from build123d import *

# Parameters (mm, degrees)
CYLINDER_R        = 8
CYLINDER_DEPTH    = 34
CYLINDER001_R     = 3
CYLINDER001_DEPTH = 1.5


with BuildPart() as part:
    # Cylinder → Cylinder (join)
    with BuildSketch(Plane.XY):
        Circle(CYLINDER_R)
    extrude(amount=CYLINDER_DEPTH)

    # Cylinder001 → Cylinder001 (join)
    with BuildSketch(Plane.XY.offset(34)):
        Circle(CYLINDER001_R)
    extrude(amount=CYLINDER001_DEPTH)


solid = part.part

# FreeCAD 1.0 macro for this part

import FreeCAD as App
import Part
import Sketcher

V = App.Vector

doc = App.newDocument("Part")
params = doc.addObject("Spreadsheet::Sheet", "Params")
for row, (alias, value) in enumerate([
    ("sketch1_diameter", "16 mm"),
    ("pad1_length", "34 mm"),
    ("sketch2_diameter", "6 mm"),
    ("pad2_length", "1.5 mm"),
], start=1):
    params.set(f"A{row}", alias)
    params.set(f"B{row}", "=" + value)
    params.setAlias(f"B{row}", alias)

body = doc.addObject("PartDesign::Body", "Body")

# Sketch on XY plane
sketch1 = body.newObject("Sketcher::SketchObject", "Sketch")
sketch1.AttachmentSupport = (doc.getObject("XY_Plane"), [""])
sketch1.MapMode = "FlatFace"
sketch1.addGeometry(Part.Circle(V(0, 0, 0), V(0, 0, 1), 8), False)
sketch1.addConstraint(Sketcher.Constraint("Coincident", 0, 3, -1, 1))
sketch1.addConstraint(Sketcher.Constraint("Diameter", 0, 16.0))
sketch1.setExpression("Constraints[1]", "Params.sketch1_diameter")
pad1 = body.newObject("PartDesign::Pad", "Pad")
pad1.Profile = sketch1
pad1.setExpression("Length", "Params.pad1_length")

# Sketch on XY plane
sketch2 = body.newObject("Sketcher::SketchObject", "Sketch001")
sketch2.AttachmentSupport = (doc.getObject("XY_Plane"), [""])
sketch2.MapMode = "FlatFace"
sketch2.AttachmentOffset = App.Placement(V(0, 0, 34), App.Rotation())
sketch2.addGeometry(Part.Circle(V(0, 0, 0), V(0, 0, 1), 3), False)
sketch2.addConstraint(Sketcher.Constraint("Coincident", 0, 3, -1, 1))
sketch2.addConstraint(Sketcher.Constraint("Diameter", 0, 6.0))
sketch2.setExpression("Constraints[1]", "Params.sketch2_diameter")
pad2 = body.newObject("PartDesign::Pad", "Pad001")
pad2.Profile = sketch2
pad2.setExpression("Length", "Params.pad2_length")

doc.recompute()
